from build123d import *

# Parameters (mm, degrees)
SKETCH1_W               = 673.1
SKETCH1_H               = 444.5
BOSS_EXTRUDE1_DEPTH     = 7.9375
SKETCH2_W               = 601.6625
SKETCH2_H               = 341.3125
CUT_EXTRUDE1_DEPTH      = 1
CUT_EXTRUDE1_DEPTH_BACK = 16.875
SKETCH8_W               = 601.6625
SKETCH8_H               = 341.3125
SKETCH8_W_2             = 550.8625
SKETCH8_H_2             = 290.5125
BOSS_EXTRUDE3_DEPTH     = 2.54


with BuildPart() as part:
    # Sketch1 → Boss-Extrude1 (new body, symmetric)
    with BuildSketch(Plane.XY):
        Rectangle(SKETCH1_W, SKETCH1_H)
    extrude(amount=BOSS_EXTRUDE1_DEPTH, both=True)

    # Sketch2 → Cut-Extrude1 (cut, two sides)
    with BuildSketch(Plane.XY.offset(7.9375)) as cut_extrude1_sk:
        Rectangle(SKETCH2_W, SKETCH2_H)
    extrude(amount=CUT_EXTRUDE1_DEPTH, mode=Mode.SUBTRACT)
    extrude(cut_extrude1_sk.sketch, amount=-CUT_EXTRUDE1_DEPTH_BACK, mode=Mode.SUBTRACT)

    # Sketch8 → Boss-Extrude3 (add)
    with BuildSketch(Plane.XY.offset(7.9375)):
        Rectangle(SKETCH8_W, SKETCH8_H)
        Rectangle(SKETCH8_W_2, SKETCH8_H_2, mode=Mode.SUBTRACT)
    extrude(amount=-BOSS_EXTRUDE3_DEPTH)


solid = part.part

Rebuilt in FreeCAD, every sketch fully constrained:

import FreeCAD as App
import Part
import Sketcher
Q = App.Units.Quantity

doc = App.newDocument("Part")
body = doc.addObject("PartDesign::Body", "Body")

sketch1 = body.newObject("Sketcher::SketchObject", "Sketch")
sketch1.AttachmentSupport = (doc.getObject("XY_Plane"), [""])
sketch1.MapMode = "FlatFace"
sketch1.addGeometry([
    Part.LineSegment(App.Vector(-336.55, 222.25, 0), App.Vector(-336.55, -222.25, 0)),
    Part.LineSegment(App.Vector(-336.55, -222.25, 0), App.Vector(336.55, -222.25, 0)),
    Part.LineSegment(App.Vector(336.55, -222.25, 0), App.Vector(336.55, 222.25, 0)),
    Part.LineSegment(App.Vector(336.55, 222.25, 0), App.Vector(-336.55, 222.25, 0)),
], False)
sketch1.addConstraint([
    Sketcher.Constraint("Coincident", 0, 2, 1, 1),
    Sketcher.Constraint("Coincident", 1, 2, 2, 1),
    Sketcher.Constraint("Coincident", 2, 2, 3, 1),
    Sketcher.Constraint("Coincident", 3, 2, 0, 1),
    Sketcher.Constraint("Vertical", 0),
    Sketcher.Constraint("Horizontal", 1),
    Sketcher.Constraint("Vertical", 2),
    Sketcher.Constraint("Horizontal", 3),
    Sketcher.Constraint("Symmetric", 0, 2, 2, 2, -1, 1),
    Sketcher.Constraint("DistanceX", 1, 1, 1, 2, Q("26.5 in")),
    Sketcher.Constraint("DistanceY", 0, 2, 0, 1, Q("17.5 in")),
])
pad1 = body.newObject("PartDesign::Pad", "Pad")
pad1.Profile = sketch1
pad1.Length = Q("0.625 in")
pad1.Midplane = True

sketch2 = body.newObject("Sketcher::SketchObject", "Sketch001")
sketch2.AttachmentSupport = (doc.getObject("XY_Plane"), [""])
sketch2.MapMode = "FlatFace"
sketch2.AttachmentOffset = App.Placement(App.Vector(0, 0, 0.3125 * 25.4), App.Rotation())
sketch2.addGeometry([
    Part.LineSegment(App.Vector(-300.83125, 170.65625, 0), App.Vector(-300.83125, -170.65625, 0)),
    Part.LineSegment(App.Vector(-300.83125, -170.65625, 0), App.Vector(300.83125, -170.65625, 0)),
    Part.LineSegment(App.Vector(300.83125, -170.65625, 0), App.Vector(300.83125, 170.65625, 0)),
    Part.LineSegment(App.Vector(300.83125, 170.65625, 0), App.Vector(-300.83125, 170.65625, 0)),
], False)
sketch2.addConstraint([
    Sketcher.Constraint("Coincident", 0, 2, 1, 1),
    Sketcher.Constraint("Coincident", 1, 2, 2, 1),
    Sketcher.Constraint("Coincident", 2, 2, 3, 1),
    Sketcher.Constraint("Coincident", 3, 2, 0, 1),
    Sketcher.Constraint("Vertical", 0),
    Sketcher.Constraint("Horizontal", 1),
    Sketcher.Constraint("Vertical", 2),
    Sketcher.Constraint("Horizontal", 3),
    Sketcher.Constraint("Symmetric", 0, 2, 2, 2, -1, 1),
    Sketcher.Constraint("DistanceX", 1, 1, 1, 2, Q("23.6875 in")),
    Sketcher.Constraint("DistanceY", 0, 2, 0, 1, Q("13.4375 in")),
])
pocket1 = body.newObject("PartDesign::Pocket", "Pocket")
pocket1.Profile = sketch2
pocket1.Type = "ThroughAll"
pocket1.Midplane = True

sketch3 = body.newObject("Sketcher::SketchObject", "Sketch002")
sketch3.AttachmentSupport = (doc.getObject("XY_Plane"), [""])
sketch3.MapMode = "FlatFace"
sketch3.AttachmentOffset = App.Placement(App.Vector(0, 0, 0.3125 * 25.4), App.Rotation())
sketch3.addGeometry([
    Part.LineSegment(App.Vector(-300.83125, 170.65625, 0), App.Vector(-300.83125, -170.65625, 0)),
    Part.LineSegment(App.Vector(-300.83125, -170.65625, 0), App.Vector(300.83125, -170.65625, 0)),
    Part.LineSegment(App.Vector(300.83125, -170.65625, 0), App.Vector(300.83125, 170.65625, 0)),
    Part.LineSegment(App.Vector(300.83125, 170.65625, 0), App.Vector(-300.83125, 170.65625, 0)),
    Part.LineSegment(App.Vector(275.43125, -145.25625, 0), App.Vector(-275.43125, -145.25625, 0)),
    Part.LineSegment(App.Vector(-275.43125, -145.25625, 0), App.Vector(-275.43125, 145.25625, 0)),
    Part.LineSegment(App.Vector(-275.43125, 145.25625, 0), App.Vector(275.43125, 145.25625, 0)),
    Part.LineSegment(App.Vector(275.43125, 145.25625, 0), App.Vector(275.43125, -145.25625, 0)),
], False)
sketch3.addConstraint([
    Sketcher.Constraint("Coincident", 0, 2, 1, 1),
    Sketcher.Constraint("Coincident", 1, 2, 2, 1),
    Sketcher.Constraint("Coincident", 2, 2, 3, 1),
    Sketcher.Constraint("Coincident", 3, 2, 0, 1),
    Sketcher.Constraint("Coincident", 4, 2, 5, 1),
    Sketcher.Constraint("Coincident", 5, 2, 6, 1),
    Sketcher.Constraint("Coincident", 6, 2, 7, 1),
    Sketcher.Constraint("Coincident", 7, 2, 4, 1),
    Sketcher.Constraint("Vertical", 0),
    Sketcher.Constraint("Horizontal", 1),
    Sketcher.Constraint("Vertical", 2),
    Sketcher.Constraint("Horizontal", 3),
    Sketcher.Constraint("Horizontal", 4),
    Sketcher.Constraint("Vertical", 5),
    Sketcher.Constraint("Horizontal", 6),
    Sketcher.Constraint("Vertical", 7),
    Sketcher.Constraint("Symmetric", 0, 2, 2, 2, -1, 1),
    Sketcher.Constraint("Symmetric", 4, 2, 6, 2, -1, 1),
    Sketcher.Constraint("DistanceX", 0, 2, 4, 2, Q("1 in")),
    Sketcher.Constraint("DistanceY", 0, 2, 4, 2, Q("1 in")),
    Sketcher.Constraint("DistanceX", 1, 1, 1, 2, Q("23.6875 in")),
    Sketcher.Constraint("DistanceY", 0, 2, 0, 1, Q("13.4375 in")),
])
pad2 = body.newObject("PartDesign::Pad", "Pad001")
pad2.Profile = sketch3
pad2.Length = Q("0.1 in")
pad2.Reversed = True

doc.recompute()
